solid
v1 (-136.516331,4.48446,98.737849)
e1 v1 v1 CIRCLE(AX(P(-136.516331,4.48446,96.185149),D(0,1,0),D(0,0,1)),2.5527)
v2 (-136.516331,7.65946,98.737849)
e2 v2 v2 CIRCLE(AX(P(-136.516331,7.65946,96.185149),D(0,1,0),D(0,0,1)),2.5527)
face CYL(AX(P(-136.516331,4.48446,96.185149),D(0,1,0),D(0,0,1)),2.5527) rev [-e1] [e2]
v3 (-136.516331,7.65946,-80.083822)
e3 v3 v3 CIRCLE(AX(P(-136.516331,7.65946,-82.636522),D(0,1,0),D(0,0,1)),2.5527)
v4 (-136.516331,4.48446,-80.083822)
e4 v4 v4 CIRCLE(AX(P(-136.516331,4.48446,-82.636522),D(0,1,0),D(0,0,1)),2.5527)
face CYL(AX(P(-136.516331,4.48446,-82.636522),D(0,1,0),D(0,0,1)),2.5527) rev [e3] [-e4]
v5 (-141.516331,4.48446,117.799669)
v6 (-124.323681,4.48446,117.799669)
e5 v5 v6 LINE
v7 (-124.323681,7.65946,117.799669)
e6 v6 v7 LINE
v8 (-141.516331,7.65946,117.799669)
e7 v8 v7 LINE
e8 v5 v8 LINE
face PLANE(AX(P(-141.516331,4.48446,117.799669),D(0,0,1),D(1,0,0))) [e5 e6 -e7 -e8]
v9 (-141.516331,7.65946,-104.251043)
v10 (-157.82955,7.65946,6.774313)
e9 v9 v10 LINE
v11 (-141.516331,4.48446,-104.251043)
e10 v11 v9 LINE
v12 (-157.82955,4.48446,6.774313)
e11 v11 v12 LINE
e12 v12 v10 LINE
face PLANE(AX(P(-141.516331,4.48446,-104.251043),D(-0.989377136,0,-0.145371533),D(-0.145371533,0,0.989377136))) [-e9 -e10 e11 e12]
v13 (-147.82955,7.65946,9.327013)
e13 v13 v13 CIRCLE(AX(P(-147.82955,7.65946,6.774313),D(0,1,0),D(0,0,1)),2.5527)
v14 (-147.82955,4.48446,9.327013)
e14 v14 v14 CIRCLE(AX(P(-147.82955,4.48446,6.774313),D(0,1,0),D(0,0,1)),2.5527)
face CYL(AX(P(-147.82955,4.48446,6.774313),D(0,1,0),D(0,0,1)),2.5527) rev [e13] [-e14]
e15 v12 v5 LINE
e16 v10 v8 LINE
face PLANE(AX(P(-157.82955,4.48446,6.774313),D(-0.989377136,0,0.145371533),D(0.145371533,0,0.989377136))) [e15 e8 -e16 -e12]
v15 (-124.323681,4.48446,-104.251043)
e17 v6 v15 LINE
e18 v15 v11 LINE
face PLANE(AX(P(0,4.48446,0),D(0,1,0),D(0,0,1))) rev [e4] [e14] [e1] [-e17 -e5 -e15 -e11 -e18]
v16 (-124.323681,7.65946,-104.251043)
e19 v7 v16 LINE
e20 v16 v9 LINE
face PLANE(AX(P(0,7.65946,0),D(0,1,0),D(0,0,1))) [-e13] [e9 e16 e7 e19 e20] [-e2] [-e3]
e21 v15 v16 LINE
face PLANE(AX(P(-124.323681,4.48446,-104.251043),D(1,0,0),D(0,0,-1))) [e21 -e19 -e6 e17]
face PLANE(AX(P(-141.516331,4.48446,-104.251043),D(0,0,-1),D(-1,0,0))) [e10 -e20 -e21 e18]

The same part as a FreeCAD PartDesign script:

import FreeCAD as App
import Part
import Sketcher
from FreeCAD import Vector
Q = App.Units.Quantity


def add_polygon(sketch, points):
    """Adds a closed chain of lines whose ends are joined by coincident constraints."""
    first, n = sketch.GeometryCount, len(points)
    for a, b in zip(points, points[1:] + points[:1]):
        sketch.addGeometry(Part.LineSegment(App.Vector(*a, 0), App.Vector(*b, 0)), False)
    for i in range(n):
        sketch.addConstraint(Sketcher.Constraint("Coincident", first + i, 2, first + (i + 1) % n, 1))

doc = App.newDocument("Part")
body = doc.addObject("PartDesign::Body", "Body")

# Sketch on XZ plane
sketch1 = body.newObject("Sketcher::SketchObject", "Sketch")
sketch1.AttachmentSupport = (doc.getObject("XZ_Plane"), [""])
sketch1.MapMode = "FlatFace"
sketch1.AttachmentOffset = App.Placement(Vector(0, 0, -7.65946), App.Rotation())
add_polygon(sketch1, [(-124.3, -104.3), (-141.5, -104.3), (-157.8, 6.8), (-141.5, 117.8), (-124.3, 117.8)])  # lines 0-4
sketch1.addGeometry(Part.Circle(Vector(-136.5, 96.2, 0), Vector(0, 0, 1), 2.6), False)  # 5
sketch1.addGeometry(Part.Circle(Vector(-136.5, -82.6, 0), Vector(0, 0, 1), 2.6), False)  # 6
sketch1.addGeometry(Part.Circle(Vector(-147.8, 6.8, 0), Vector(0, 0, 1), 2.6), False)  # 7
sketch1.addConstraint(Sketcher.Constraint("Horizontal", 0))
sketch1.addConstraint(Sketcher.Constraint("Horizontal", 3))
sketch1.addConstraint(Sketcher.Constraint("Vertical", 4))
sketch1.addConstraint(Sketcher.Constraint("Equal", 5, 6))
sketch1.addConstraint(Sketcher.Constraint("Equal", 6, 7))
sketch1.addConstraint(Sketcher.Constraint("Horizontal", 7, 3, 1, 2))
sketch1.addConstraint(Sketcher.Constraint("Vertical", 5, 3, 6, 3))
sketch1.addConstraint(Sketcher.Constraint("Vertical", 0, 2, 2, 2))
sketch1.addConstraint(Sketcher.Constraint("Equal", 1, 2))
sketch1.addConstraint(Sketcher.Constraint("Diameter", 5, Q("0.201 in")))
sketch1.addConstraint(Sketcher.Constraint("DistanceX", 0, 2, 0, 1, Q("17.192649 mm")))
sketch1.addConstraint(Sketcher.Constraint("DistanceX", 0, 2, 6, 3, Q("5 mm")))
sketch1.addConstraint(Sketcher.Constraint("DistanceX", 1, 2, 7, 3, Q("10 mm")))
sketch1.addConstraint(Sketcher.Constraint("DistanceY", 4, 2, 4, 1, Q("222.050712 mm")))
sketch1.addConstraint(Sketcher.Constraint("DistanceX", 5, 3, -1, 1, Q("136.516331 mm")))
sketch1.addConstraint(Sketcher.Constraint("DistanceY", -1, 1, 5, 3, Q("96.185149 mm")))
sketch1.addConstraint(Sketcher.Constraint("DistanceX", 7, 3, -1, 1, Q("147.82955 mm")))
sketch1.addConstraint(Sketcher.Constraint("DistanceY", -1, 1, 2, 2, Q("117.799669 mm")))
sketch1.addConstraint(Sketcher.Constraint("DistanceY", 6, 3, 5, 3, Q("178.821671 mm")))
pad1 = body.newObject("PartDesign::Pad", "Pad")
pad1.Profile = sketch1
pad1.Length = Q("0.125 in")

doc.recompute()
